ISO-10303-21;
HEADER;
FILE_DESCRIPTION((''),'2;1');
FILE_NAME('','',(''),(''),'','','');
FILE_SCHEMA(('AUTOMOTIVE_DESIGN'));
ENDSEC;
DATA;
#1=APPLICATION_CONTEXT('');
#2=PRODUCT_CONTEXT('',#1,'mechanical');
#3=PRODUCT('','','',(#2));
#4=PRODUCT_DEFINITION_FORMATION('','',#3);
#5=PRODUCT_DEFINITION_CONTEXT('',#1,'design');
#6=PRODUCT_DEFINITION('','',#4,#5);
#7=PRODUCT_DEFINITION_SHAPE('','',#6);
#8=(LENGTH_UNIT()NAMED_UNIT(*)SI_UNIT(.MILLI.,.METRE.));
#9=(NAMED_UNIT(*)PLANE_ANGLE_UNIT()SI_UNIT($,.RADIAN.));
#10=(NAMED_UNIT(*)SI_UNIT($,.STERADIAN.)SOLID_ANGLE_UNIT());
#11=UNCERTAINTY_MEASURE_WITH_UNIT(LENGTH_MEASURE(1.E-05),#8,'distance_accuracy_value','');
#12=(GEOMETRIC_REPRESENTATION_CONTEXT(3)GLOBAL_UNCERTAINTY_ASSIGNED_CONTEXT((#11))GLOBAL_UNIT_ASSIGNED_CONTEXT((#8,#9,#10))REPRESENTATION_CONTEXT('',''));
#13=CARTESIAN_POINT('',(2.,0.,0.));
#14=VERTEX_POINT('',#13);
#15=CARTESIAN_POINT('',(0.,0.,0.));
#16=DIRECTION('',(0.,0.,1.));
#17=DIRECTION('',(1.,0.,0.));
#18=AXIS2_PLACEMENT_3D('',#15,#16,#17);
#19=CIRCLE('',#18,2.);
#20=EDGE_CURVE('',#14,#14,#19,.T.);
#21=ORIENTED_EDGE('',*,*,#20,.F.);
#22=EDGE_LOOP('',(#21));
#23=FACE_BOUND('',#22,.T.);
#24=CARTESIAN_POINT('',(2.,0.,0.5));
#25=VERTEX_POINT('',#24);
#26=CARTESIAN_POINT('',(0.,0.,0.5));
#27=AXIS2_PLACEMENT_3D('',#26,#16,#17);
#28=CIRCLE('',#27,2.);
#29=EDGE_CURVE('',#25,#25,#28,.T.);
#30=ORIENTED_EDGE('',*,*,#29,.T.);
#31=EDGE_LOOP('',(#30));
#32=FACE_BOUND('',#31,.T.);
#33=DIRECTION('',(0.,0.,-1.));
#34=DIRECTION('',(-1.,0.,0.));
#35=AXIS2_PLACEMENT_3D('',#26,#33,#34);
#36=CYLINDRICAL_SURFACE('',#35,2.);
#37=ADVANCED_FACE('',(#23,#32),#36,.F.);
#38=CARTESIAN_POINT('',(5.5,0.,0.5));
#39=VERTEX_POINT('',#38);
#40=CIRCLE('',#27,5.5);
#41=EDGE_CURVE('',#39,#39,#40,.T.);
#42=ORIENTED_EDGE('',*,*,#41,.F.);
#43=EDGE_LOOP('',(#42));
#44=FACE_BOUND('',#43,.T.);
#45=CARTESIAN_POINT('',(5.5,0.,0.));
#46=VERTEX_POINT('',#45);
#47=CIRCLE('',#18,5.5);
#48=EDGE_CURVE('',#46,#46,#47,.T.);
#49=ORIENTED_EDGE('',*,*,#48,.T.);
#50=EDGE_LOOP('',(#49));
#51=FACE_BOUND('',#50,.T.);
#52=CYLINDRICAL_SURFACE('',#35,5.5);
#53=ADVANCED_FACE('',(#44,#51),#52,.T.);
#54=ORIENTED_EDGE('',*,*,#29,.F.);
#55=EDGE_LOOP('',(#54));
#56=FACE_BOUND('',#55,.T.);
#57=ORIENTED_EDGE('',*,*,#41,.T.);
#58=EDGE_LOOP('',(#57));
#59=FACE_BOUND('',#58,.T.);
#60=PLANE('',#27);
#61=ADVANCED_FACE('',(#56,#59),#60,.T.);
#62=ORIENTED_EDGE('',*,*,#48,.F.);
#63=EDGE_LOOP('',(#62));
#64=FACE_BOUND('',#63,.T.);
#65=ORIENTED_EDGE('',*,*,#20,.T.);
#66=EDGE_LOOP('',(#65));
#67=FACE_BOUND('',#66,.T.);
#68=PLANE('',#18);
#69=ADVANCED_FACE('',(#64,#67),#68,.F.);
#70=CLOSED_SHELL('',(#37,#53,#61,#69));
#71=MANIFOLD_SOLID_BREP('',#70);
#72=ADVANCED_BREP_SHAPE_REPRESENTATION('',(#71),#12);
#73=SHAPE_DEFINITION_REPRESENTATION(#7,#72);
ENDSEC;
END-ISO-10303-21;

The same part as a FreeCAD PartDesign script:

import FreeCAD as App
import Part
import Sketcher
from FreeCAD import Vector
Q = App.Units.Quantity

doc = App.newDocument("Part")
body = doc.addObject("PartDesign::Body", "Body")

# Sketch on XY plane
sketch1 = doc.addObject("Sketcher::SketchObject", "Sketch")
body.addObject(sketch1)
sketch1.AttachmentSupport = (doc.XY_Plane, [""])
sketch1.MapMode = "FlatFace"
sketch1.addGeometry([
    Part.Circle(Vector(0, 0, 0), Vector(0, 0, 1), 5.5),
    Part.Circle(Vector(0, 0, 0), Vector(0, 0, 1), 2),
], False)
sketch1.addConstraint([
    Sketcher.Constraint("Coincident", 0, 3, -1, 1),
    Sketcher.Constraint("Coincident", 1, 3, -1, 1),
    Sketcher.Constraint("Diameter", 0, Q("11 mm")),
    Sketcher.Constraint("Diameter", 1, Q("4 mm")),
])
pad1 = doc.addObject("PartDesign::Pad", "Pad")
body.addObject(pad1)
pad1.Profile = sketch1
pad1.Length = 0.5

doc.recompute()
